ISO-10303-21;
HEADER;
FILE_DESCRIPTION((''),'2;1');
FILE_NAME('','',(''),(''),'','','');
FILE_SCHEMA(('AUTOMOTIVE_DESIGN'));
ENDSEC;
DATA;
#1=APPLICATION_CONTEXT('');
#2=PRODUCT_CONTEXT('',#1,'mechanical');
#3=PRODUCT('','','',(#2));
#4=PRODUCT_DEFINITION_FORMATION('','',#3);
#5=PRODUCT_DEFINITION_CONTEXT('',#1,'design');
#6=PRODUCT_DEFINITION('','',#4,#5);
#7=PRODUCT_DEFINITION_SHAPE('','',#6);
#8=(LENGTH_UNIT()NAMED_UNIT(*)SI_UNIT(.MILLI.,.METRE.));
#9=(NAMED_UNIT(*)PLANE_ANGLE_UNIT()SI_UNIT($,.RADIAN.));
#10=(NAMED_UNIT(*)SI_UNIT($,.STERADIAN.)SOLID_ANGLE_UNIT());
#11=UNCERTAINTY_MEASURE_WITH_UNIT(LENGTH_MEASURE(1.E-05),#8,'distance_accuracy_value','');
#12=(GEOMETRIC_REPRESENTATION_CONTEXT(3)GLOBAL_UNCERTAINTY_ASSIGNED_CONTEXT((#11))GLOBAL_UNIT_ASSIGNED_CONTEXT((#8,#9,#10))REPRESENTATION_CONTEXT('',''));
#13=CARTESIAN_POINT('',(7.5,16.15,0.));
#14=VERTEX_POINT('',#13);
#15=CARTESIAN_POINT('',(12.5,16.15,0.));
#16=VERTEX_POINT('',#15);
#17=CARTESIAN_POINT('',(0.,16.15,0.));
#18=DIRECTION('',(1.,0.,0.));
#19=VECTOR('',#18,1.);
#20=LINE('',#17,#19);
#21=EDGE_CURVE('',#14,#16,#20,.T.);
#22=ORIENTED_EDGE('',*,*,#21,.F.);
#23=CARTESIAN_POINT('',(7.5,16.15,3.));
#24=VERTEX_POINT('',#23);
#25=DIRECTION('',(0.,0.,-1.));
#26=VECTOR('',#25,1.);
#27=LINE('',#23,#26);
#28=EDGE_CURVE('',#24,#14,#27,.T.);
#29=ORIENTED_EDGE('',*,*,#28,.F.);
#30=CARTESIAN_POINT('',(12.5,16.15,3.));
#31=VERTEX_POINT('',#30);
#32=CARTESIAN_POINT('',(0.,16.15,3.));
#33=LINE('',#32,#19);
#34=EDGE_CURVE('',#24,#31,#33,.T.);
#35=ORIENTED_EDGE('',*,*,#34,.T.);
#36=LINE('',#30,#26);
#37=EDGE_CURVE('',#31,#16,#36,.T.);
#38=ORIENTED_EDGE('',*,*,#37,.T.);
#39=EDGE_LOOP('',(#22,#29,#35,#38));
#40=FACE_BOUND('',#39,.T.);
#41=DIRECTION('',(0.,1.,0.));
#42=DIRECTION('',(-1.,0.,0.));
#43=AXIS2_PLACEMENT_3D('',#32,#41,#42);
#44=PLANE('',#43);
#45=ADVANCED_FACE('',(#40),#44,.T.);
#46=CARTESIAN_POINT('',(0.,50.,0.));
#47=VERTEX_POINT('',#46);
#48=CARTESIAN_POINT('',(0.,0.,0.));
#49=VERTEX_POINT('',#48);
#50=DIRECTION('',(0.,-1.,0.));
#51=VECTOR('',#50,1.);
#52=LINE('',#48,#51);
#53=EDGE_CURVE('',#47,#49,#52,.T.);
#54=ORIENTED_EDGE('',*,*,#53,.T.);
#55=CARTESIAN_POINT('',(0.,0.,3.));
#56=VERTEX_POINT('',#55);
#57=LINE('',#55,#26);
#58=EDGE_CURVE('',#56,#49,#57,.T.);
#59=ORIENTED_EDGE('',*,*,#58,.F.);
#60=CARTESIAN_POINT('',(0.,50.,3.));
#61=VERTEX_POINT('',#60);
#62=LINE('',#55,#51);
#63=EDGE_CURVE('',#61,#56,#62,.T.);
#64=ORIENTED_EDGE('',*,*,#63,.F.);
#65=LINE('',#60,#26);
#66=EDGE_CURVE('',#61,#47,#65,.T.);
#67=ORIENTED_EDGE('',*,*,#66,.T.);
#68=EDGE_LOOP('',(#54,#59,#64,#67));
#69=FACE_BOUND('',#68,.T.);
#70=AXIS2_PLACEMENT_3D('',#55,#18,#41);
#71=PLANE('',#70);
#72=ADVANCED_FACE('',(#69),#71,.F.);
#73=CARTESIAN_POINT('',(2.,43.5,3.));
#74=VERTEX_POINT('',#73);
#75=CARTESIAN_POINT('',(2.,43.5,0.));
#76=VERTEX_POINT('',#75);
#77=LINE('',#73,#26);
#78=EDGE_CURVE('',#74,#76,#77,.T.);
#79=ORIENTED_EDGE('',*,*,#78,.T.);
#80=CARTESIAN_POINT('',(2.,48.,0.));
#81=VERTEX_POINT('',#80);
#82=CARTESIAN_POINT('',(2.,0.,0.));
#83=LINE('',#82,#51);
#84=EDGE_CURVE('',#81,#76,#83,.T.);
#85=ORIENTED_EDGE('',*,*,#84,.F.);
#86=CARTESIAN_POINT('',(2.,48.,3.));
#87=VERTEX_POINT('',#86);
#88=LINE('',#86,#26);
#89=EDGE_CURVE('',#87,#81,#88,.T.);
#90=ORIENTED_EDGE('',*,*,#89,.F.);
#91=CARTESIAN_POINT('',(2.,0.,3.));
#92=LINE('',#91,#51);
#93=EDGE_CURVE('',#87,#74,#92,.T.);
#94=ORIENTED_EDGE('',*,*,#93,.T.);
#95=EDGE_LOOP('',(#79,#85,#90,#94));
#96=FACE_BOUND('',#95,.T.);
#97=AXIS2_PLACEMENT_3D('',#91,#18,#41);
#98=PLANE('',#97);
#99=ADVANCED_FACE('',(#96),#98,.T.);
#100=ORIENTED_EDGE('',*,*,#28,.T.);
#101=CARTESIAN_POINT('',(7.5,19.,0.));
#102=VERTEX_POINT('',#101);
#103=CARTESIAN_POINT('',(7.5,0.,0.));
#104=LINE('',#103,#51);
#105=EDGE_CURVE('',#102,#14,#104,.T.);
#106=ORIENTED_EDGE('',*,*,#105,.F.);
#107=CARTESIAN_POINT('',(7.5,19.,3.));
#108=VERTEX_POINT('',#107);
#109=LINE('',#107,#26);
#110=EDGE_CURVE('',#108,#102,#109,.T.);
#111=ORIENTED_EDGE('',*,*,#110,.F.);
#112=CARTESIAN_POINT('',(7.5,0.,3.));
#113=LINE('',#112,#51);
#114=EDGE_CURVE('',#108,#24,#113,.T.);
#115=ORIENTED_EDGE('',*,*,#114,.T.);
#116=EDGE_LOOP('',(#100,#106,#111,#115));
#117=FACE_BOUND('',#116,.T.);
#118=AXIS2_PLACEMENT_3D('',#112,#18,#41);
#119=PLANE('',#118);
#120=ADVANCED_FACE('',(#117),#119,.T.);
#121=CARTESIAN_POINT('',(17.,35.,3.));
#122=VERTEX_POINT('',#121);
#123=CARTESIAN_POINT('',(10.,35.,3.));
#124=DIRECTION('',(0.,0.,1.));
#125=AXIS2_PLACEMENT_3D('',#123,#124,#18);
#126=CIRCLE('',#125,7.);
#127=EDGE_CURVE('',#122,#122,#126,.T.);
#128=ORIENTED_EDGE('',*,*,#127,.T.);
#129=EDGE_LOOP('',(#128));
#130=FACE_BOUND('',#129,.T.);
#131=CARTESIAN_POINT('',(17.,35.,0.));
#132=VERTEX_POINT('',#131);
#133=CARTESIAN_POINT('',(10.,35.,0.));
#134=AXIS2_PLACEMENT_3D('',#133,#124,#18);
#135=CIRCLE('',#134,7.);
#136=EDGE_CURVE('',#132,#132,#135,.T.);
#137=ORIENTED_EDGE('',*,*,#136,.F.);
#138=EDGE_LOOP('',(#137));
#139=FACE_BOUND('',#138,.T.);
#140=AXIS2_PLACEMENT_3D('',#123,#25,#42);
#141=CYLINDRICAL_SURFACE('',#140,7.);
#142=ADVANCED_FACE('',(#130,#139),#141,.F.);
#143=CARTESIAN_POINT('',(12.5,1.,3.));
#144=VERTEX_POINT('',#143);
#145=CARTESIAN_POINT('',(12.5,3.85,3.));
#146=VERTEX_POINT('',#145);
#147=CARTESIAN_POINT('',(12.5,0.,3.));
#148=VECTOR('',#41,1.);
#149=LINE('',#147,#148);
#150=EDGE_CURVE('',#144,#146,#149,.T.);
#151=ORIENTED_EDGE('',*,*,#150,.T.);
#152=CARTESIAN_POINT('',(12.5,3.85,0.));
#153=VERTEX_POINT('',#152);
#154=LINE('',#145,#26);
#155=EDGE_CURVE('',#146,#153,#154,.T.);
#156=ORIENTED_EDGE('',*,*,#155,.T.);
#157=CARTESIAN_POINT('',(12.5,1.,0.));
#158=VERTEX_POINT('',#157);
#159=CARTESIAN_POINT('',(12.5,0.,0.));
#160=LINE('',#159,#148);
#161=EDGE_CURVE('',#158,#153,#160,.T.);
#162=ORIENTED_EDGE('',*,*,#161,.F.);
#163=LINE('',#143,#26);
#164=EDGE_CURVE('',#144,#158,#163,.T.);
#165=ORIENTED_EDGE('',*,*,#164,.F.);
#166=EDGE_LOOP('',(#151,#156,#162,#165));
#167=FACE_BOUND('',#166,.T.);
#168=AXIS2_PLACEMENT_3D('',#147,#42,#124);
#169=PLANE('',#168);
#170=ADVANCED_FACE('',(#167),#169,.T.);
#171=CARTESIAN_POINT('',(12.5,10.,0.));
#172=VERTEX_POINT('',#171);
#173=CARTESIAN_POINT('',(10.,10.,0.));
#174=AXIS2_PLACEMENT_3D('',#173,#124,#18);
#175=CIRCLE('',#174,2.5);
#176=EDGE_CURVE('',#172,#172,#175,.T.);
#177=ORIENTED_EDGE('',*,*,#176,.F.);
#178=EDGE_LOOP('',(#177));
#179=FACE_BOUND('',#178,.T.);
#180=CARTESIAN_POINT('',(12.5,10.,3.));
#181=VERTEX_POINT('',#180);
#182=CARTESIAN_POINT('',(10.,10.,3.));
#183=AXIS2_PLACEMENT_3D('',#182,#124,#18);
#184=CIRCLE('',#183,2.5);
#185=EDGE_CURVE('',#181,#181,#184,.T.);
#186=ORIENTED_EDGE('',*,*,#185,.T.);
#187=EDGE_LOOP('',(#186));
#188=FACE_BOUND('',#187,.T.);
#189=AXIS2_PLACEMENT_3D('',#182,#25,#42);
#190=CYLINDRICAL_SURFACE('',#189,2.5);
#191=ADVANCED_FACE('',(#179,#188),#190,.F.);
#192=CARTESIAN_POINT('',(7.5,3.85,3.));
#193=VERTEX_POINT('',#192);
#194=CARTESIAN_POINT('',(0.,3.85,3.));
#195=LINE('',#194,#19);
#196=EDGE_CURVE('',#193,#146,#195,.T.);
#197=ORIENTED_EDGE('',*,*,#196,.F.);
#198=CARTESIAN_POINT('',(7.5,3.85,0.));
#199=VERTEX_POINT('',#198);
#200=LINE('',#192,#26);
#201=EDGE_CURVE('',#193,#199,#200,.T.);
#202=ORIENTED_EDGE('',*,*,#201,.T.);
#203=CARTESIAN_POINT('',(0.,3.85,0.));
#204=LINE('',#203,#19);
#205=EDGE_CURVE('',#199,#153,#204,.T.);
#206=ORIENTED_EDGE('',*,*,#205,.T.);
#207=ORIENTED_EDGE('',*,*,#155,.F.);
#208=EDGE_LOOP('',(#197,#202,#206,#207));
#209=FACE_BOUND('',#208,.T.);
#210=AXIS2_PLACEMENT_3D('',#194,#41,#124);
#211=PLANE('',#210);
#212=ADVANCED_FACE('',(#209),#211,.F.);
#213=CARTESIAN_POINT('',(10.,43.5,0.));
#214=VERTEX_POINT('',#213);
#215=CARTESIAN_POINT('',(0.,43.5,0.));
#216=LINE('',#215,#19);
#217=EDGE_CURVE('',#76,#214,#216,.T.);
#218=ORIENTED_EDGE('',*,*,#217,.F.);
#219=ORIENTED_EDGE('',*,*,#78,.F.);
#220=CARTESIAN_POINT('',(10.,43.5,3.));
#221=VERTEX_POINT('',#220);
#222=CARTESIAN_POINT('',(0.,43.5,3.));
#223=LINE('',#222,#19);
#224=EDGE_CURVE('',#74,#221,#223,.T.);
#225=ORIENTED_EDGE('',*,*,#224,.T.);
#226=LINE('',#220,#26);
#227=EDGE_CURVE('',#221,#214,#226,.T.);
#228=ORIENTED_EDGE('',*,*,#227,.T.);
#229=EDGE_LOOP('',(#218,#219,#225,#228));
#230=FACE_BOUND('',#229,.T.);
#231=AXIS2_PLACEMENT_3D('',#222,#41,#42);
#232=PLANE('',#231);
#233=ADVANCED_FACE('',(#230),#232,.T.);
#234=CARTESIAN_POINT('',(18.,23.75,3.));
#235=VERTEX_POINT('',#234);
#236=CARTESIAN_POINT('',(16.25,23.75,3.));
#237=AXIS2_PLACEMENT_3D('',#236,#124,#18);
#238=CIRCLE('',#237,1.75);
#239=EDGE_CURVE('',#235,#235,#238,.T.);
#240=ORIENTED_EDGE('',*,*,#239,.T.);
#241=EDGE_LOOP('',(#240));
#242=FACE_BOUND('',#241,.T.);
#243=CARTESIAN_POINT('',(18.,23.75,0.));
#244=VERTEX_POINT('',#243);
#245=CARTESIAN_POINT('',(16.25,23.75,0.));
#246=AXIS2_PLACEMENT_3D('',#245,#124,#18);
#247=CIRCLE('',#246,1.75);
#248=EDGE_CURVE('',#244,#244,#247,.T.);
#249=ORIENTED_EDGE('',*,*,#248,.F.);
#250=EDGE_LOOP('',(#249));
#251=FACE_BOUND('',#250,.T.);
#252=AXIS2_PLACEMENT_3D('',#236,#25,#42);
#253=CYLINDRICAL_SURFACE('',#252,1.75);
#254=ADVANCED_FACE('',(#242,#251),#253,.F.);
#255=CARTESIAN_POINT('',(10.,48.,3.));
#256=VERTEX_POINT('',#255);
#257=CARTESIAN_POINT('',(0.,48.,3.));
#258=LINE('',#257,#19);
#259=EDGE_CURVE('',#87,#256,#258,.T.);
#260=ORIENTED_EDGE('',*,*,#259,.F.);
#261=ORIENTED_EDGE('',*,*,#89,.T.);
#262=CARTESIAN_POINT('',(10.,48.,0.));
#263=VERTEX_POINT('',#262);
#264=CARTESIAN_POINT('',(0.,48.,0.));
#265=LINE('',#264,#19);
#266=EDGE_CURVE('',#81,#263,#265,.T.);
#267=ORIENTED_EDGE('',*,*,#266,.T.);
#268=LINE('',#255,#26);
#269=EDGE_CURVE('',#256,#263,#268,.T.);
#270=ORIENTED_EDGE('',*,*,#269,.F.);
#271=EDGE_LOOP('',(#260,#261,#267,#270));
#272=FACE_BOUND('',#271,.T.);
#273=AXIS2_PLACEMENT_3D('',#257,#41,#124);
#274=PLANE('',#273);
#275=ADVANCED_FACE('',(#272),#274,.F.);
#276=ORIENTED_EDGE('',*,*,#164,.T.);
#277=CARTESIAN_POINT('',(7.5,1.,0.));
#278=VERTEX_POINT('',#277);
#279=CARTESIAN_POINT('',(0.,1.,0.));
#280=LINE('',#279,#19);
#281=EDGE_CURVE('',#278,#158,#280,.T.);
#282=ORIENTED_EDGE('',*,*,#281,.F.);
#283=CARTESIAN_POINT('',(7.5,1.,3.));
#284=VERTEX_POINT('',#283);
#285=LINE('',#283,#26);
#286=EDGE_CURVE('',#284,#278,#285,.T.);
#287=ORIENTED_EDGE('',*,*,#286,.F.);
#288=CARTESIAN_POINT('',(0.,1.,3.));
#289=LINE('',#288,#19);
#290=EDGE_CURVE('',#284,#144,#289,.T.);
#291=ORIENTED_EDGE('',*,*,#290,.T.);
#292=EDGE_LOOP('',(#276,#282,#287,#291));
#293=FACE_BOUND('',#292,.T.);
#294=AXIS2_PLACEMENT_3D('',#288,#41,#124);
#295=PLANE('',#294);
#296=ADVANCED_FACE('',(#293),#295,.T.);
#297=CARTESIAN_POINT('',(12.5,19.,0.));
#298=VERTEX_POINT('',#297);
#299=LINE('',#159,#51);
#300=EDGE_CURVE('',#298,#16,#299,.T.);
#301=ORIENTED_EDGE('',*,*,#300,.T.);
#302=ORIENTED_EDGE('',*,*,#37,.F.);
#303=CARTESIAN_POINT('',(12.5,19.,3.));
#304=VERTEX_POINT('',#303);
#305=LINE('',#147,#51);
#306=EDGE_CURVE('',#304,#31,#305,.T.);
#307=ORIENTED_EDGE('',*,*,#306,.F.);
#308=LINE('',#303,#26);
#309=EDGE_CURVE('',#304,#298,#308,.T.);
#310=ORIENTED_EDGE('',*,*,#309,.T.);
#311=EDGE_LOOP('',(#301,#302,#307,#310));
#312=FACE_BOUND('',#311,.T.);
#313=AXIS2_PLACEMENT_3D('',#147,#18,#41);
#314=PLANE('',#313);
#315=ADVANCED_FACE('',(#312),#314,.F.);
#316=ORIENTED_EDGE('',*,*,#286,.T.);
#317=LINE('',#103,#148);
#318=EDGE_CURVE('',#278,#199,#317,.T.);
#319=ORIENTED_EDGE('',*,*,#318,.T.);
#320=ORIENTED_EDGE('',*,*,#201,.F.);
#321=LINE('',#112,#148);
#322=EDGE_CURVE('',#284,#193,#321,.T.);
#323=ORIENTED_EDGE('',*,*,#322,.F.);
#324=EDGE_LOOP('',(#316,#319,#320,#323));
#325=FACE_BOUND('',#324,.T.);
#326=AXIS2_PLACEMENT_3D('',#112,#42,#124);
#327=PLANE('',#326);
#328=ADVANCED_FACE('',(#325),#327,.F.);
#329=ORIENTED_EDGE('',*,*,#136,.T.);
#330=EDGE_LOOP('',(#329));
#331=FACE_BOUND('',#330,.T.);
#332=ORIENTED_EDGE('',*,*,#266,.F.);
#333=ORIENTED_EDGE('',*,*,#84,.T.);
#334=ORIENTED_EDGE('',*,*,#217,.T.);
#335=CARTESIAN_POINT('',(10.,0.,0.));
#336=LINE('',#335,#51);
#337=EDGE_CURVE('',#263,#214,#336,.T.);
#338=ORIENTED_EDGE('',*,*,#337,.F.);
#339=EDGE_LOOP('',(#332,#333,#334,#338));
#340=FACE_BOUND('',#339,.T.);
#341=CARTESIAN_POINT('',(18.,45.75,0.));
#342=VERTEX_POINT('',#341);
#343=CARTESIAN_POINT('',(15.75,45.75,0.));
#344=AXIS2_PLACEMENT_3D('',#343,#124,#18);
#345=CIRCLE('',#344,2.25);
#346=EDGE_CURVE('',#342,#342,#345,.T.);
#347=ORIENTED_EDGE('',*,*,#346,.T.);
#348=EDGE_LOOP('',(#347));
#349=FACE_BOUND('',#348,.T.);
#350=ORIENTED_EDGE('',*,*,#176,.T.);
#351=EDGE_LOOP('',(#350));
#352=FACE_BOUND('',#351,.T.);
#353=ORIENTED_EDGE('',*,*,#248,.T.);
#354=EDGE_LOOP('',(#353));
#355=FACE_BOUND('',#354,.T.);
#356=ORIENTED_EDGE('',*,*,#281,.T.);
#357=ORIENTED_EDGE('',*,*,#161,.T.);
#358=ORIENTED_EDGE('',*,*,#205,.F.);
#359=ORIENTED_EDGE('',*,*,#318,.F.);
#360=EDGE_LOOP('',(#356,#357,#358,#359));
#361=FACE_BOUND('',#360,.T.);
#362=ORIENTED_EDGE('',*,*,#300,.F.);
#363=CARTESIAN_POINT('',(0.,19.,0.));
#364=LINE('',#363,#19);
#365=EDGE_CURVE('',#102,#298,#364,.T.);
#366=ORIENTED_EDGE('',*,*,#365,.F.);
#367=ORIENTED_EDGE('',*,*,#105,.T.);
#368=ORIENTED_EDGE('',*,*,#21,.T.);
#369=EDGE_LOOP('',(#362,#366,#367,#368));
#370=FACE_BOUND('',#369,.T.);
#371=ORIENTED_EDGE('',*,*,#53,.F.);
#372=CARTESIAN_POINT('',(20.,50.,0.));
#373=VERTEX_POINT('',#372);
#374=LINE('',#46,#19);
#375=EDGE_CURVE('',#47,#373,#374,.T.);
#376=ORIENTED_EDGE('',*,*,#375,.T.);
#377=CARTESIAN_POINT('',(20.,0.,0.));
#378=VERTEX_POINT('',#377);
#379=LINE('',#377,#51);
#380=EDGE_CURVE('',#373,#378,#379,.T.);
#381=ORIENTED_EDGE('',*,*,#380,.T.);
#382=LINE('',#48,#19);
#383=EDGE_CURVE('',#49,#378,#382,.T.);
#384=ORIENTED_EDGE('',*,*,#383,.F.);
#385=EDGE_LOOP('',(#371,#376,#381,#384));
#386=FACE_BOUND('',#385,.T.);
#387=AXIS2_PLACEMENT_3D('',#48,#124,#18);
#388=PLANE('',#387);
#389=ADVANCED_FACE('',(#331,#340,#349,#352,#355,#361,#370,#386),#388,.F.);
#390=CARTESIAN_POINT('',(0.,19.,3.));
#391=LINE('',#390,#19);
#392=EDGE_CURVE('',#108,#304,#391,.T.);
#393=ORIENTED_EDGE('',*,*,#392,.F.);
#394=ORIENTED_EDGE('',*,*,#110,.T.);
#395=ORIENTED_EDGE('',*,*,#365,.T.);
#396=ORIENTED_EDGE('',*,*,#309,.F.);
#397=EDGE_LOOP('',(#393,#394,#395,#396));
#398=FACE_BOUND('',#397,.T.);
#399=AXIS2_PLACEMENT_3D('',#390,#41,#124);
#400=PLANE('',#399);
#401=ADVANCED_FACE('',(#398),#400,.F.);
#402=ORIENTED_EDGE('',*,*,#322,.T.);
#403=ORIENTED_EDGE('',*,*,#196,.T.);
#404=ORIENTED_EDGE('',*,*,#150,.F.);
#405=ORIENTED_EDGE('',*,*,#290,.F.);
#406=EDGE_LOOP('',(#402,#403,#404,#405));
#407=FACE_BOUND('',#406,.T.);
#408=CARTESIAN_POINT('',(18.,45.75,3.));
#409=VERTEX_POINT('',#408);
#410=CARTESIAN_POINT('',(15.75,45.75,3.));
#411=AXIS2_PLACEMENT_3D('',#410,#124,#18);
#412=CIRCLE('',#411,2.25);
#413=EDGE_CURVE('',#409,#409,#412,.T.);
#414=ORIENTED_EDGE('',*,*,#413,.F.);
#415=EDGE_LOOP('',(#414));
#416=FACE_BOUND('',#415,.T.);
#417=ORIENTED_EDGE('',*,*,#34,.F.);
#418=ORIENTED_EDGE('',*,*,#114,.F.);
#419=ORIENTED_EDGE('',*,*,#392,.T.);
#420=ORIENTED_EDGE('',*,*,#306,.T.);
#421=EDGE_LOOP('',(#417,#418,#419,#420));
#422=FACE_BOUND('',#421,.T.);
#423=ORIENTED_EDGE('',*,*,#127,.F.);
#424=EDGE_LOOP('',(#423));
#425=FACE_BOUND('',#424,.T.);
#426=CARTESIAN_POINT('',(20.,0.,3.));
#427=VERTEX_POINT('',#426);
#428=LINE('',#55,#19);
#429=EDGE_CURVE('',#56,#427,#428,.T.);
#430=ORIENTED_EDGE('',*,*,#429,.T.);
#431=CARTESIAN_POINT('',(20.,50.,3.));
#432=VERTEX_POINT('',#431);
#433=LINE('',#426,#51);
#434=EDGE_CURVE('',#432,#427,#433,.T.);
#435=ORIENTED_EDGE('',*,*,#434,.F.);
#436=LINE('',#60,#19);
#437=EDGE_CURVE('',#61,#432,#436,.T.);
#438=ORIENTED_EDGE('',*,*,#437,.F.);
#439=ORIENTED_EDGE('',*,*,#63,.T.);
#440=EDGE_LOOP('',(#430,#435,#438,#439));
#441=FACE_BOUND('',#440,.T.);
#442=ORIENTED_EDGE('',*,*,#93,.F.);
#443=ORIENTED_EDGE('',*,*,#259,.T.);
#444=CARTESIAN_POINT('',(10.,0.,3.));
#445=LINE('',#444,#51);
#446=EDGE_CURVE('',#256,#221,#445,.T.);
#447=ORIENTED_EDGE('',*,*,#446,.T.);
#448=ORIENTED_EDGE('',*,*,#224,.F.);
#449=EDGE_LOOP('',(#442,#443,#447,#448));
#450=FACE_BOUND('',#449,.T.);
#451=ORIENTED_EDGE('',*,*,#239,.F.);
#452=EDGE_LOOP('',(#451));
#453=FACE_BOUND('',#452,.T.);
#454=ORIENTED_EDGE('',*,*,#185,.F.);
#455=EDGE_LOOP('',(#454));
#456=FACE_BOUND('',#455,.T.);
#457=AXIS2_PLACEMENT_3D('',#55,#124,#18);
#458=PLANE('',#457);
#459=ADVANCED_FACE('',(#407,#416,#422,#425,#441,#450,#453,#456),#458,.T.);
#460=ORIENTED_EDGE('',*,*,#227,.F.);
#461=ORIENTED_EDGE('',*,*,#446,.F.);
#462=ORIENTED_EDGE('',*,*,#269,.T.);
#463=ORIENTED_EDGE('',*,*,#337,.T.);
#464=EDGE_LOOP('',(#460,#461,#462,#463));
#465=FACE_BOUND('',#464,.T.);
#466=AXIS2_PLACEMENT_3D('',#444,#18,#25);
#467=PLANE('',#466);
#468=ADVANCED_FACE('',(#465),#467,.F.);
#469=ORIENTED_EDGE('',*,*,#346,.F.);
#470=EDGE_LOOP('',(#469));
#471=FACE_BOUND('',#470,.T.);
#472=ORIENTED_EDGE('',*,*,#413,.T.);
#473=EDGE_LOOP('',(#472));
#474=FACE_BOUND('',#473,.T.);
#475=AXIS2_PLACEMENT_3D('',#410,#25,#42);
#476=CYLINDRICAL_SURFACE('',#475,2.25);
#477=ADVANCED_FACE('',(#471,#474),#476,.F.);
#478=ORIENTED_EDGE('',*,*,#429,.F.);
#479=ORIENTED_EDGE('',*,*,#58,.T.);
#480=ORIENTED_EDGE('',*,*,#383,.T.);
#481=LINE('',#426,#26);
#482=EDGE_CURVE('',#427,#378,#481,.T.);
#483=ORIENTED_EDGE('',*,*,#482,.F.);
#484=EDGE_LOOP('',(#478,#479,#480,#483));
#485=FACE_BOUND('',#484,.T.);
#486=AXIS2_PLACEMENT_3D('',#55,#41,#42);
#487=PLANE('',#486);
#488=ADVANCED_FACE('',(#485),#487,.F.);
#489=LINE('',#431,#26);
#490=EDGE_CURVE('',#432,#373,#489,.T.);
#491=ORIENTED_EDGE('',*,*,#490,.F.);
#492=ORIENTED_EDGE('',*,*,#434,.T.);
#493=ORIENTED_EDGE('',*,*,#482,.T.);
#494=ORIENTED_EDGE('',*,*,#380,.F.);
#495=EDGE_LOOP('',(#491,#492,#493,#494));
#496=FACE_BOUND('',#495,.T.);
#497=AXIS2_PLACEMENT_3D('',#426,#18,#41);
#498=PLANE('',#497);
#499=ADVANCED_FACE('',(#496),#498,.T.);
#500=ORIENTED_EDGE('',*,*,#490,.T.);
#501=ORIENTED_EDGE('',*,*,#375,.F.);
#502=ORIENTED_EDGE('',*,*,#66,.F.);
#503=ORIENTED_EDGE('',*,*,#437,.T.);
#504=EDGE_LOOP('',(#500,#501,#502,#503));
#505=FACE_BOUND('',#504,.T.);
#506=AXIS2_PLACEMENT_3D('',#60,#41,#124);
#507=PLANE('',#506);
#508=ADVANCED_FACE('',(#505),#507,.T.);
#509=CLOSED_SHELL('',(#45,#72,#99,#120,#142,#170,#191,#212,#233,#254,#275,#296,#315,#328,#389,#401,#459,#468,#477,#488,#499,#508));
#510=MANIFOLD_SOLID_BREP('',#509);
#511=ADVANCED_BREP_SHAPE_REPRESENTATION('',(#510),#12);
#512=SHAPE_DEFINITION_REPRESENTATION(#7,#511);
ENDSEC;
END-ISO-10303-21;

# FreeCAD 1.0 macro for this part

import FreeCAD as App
import Part
import Sketcher
from FreeCAD import Vector
Q = App.Units.Quantity


def add_polygon(sketch, points):
    """Adds a closed chain of lines whose ends are joined by coincident constraints."""
    first, n = sketch.GeometryCount, len(points)
    for a, b in zip(points, points[1:] + points[:1]):
        sketch.addGeometry(Part.LineSegment(App.Vector(*a, 0), App.Vector(*b, 0)), False)
    for i in range(n):
        sketch.addConstraint(Sketcher.Constraint("Coincident", first + i, 2, first + (i + 1) % n, 1))

doc = App.newDocument("Part")
body = doc.addObject("PartDesign::Body", "Body")

# Sketch on XY plane
sketch1 = body.newObject("Sketcher::SketchObject", "Sketch")
sketch1.AttachmentSupport = (doc.getObject("XY_Plane"), [""])
sketch1.MapMode = "FlatFace"
add_polygon(sketch1, [(0, 50), (0, 0), (20, 0), (20, 50)])  # lines 0-3
add_polygon(sketch1, [(12.5, 1), (7.5, 1), (7.5, 3.85), (12.5, 3.85)])  # lines 4-7
sketch1.addGeometry(Part.Circle(Vector(10, 10, 0), Vector(0, 0, 1), 2.5), False)  # 8
add_polygon(sketch1, [(12.5, 16.15), (7.5, 16.15), (7.5, 19), (12.5, 19)])  # lines 9-12
sketch1.addGeometry(Part.Circle(Vector(16.25, 23.75, 0), Vector(0, 0, 1), 1.75), False)  # 13
add_polygon(sketch1, [(10, 43.5), (2, 43.5), (2, 48), (10, 48)])  # lines 14-17
sketch1.addGeometry(Part.Circle(Vector(10, 35, 0), Vector(0, 0, 1), 7), False)  # 18
sketch1.addGeometry(Part.Circle(Vector(15.75, 45.75, 0), Vector(0, 0, 1), 2.25), False)  # 19
sketch1.addConstraint([
    Sketcher.Constraint("Vertical", 0),
    Sketcher.Constraint("Horizontal", 1),
    Sketcher.Constraint("Vertical", 2),
    Sketcher.Constraint("Horizontal", 3),
    Sketcher.Constraint("Horizontal", 4),
    Sketcher.Constraint("Vertical", 5),
    Sketcher.Constraint("Horizontal", 6),
    Sketcher.Constraint("Vertical", 7),
    Sketcher.Constraint("Horizontal", 9),
    Sketcher.Constraint("Vertical", 10),
    Sketcher.Constraint("Horizontal", 11),
    Sketcher.Constraint("Vertical", 12),
    Sketcher.Constraint("Horizontal", 14),
    Sketcher.Constraint("Vertical", 15),
    Sketcher.Constraint("Horizontal", 16),
    Sketcher.Constraint("Vertical", 17),
    Sketcher.Constraint("Coincident", 0, 2, -1, 1),
    Sketcher.Constraint("Vertical", 8, 3, 18, 3),
    Sketcher.Constraint("Vertical", 5, 2, 9, 2),
    Sketcher.Constraint("Vertical", 7, 2, 11, 2),
    Sketcher.Constraint("Vertical", 18, 3, 16, 2),
    Sketcher.Constraint("Equal", 7, 10),
    Sketcher.Constraint("Diameter", 8, Q("5 mm")),
    Sketcher.Constraint("Diameter", 18, Q("14 mm")),
    Sketcher.Constraint("Diameter", 13, Q("3.5 mm")),
    Sketcher.Constraint("Diameter", 19, Q("4.5 mm")),
    Sketcher.Constraint("DistanceX", 1, 1, 1, 2, Q("20 mm")),
    Sketcher.Constraint("DistanceX", 4, 2, 4, 1, Q("5 mm")),
    Sketcher.Constraint("DistanceX", 14, 2, 14, 1, Q("8 mm")),
    Sketcher.Constraint("DistanceY", 0, 2, 0, 1, Q("50 mm")),
    Sketcher.Constraint("DistanceY", 15, 1, 15, 2, Q("4.5 mm")),
    Sketcher.Constraint("DistanceX", -1, 1, 8, 3, Q("10 mm")),
    Sketcher.Constraint("DistanceY", -1, 1, 8, 3, Q("10 mm")),
    Sketcher.Constraint("DistanceY", -1, 1, 18, 3, Q("35 mm")),
    Sketcher.Constraint("DistanceY", -1, 1, 4, 2, Q("1 mm")),
    Sketcher.Constraint("DistanceY", -1, 1, 10, 2, Q("19 mm")),
    Sketcher.Constraint("DistanceY", -1, 1, 15, 2, Q("48 mm")),
    Sketcher.Constraint("DistanceY", 13, 3, 19, 3, Q("22 mm")),
    Sketcher.Constraint("DistanceY", 5, 1, 5, 2, Q("2.85 mm")),
    Sketcher.Constraint("DistanceX", -1, 1, 4, 2, Q("7.5 mm")),
    Sketcher.Constraint("DistanceX", 19, 3, 13, 3, Q("0.5 mm")),
    Sketcher.Constraint("DistanceY", 5, 2, 13, 3, Q("19.9 mm")),
    Sketcher.Constraint("DistanceX", -1, 1, 13, 3, Q("16.25 mm")),
])
pad1 = body.newObject("PartDesign::Pad", "Pad")
pad1.Profile = sketch1
pad1.Length = 3

doc.recompute()
